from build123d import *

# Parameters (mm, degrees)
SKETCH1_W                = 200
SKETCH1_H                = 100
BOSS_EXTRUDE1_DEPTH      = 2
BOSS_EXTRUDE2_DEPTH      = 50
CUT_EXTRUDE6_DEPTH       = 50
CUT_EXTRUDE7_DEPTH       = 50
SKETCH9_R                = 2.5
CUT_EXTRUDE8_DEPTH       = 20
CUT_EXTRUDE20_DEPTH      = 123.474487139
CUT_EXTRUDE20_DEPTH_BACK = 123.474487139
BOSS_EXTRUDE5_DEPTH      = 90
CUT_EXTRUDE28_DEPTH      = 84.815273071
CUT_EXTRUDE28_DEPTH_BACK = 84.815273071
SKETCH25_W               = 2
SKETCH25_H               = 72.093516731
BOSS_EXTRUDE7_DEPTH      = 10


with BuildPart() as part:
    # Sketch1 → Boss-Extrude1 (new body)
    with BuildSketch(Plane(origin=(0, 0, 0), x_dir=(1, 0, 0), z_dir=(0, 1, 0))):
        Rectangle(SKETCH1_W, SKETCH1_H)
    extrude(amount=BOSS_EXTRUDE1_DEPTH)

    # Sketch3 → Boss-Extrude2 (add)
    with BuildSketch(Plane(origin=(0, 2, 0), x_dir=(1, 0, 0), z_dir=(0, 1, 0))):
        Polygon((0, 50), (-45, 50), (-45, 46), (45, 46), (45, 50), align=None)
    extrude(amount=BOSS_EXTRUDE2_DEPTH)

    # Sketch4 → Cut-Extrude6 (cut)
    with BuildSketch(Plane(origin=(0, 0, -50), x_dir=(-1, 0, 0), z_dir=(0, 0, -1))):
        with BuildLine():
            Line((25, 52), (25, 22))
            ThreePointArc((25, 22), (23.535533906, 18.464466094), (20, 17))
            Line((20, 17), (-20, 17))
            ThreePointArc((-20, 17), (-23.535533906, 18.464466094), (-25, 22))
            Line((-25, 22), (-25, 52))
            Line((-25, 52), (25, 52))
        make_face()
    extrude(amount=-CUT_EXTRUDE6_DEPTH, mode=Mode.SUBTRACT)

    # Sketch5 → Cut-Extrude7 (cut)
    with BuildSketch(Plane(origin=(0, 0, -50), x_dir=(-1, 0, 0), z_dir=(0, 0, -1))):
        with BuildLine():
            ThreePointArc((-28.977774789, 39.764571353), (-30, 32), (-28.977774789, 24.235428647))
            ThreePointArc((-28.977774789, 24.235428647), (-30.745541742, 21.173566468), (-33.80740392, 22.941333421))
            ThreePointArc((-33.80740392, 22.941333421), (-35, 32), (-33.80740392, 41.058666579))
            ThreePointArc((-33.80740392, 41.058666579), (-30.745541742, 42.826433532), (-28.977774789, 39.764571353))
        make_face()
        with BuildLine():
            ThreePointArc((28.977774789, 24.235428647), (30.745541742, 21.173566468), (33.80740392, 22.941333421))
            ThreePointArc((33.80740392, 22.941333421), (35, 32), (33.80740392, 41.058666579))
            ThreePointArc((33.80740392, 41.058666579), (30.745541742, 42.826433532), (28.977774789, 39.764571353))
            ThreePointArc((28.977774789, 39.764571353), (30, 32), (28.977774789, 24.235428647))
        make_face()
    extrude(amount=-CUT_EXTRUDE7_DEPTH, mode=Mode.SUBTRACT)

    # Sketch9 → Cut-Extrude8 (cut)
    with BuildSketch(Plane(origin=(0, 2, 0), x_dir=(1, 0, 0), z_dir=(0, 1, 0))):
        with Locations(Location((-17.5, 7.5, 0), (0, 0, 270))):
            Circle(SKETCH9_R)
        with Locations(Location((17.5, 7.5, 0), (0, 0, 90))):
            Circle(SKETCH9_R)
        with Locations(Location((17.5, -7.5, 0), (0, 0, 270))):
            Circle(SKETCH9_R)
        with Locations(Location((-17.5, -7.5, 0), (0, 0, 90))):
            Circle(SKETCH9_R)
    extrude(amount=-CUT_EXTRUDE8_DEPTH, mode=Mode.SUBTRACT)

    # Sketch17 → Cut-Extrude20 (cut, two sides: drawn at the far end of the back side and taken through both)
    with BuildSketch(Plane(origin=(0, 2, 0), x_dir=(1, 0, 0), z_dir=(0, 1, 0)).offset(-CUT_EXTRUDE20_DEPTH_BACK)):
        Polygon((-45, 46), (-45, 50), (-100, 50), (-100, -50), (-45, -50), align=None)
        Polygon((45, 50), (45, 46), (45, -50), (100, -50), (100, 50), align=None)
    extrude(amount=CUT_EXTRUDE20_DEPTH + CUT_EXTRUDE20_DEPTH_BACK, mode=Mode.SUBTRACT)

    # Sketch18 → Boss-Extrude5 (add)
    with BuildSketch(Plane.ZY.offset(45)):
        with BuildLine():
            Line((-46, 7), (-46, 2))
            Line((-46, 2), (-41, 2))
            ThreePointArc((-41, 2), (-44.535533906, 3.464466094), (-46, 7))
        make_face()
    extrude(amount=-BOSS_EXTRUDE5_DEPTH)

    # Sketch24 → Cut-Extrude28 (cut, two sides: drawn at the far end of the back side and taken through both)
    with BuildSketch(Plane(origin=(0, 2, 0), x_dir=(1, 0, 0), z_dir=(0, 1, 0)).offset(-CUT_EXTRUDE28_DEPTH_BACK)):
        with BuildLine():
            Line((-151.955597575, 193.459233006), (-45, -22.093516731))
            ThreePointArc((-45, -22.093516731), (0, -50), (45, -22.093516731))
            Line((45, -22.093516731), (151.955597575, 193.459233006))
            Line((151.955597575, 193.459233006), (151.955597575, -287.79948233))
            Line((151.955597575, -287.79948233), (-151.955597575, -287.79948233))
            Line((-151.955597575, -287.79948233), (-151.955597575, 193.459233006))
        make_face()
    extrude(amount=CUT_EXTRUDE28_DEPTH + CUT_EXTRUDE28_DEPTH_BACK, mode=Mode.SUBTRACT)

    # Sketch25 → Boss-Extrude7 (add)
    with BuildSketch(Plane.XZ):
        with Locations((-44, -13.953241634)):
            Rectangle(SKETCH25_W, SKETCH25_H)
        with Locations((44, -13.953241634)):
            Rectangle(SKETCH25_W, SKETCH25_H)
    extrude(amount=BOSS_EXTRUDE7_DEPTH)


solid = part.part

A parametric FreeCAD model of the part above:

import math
import FreeCAD as App
import Part
import Sketcher
from FreeCAD import Vector
Q = App.Units.Quantity

doc = App.newDocument("Part")
params = doc.addObject("Spreadsheet::Sheet", "Params")
for row, (alias, value) in enumerate([
    ("sketch1_width", "200 mm"),
    ("sketch1_height", "100 mm"),
    ("pad1_length", "2 mm"),
    ("sketch2_width", "90 mm"),
    ("sketch2_height", "4 mm"),
    ("pad2_length", "50 mm"),
    ("sketch3_radius", "5 mm"),
    ("sketch3_width", "50 mm"),
    ("sketch3_height", "30 mm"),
    ("pocket1_length", "50 mm"),
    ("sketch4_radius", "30 mm"),
    ("sketch4_radius2", "35 mm"),
    ("pocket2_length", "50 mm"),
    ("sketch5_diameter", "5 mm"),
    ("pocket3_length", "20 mm"),
    ("sketch6_width", "55 mm"),
    ("sketch6_height", "100 mm"),
    ("sketch7_radius", "5 mm"),
    ("pad3_length", "90 mm"),
    ("sketch9_width", "2 mm"),
    ("pad4_length", "10 mm"),
], start=1):
    params.set(f"A{row}", alias)
    params.set(f"B{row}", "=" + value)
    params.setAlias(f"B{row}", alias)

body = doc.addObject("PartDesign::Body", "Body")

sketch1 = body.newObject("Sketcher::SketchObject", "Sketch")
sketch1.AttachmentSupport = (doc.getObject("XZ_Plane"), [""])
sketch1.MapMode = "FlatFace"
sketch1.addGeometry([
    Part.LineSegment(Vector(-100, -50, 0), Vector(-100, 50, 0)),
    Part.LineSegment(Vector(-100, 50, 0), Vector(100, 50, 0)),
    Part.LineSegment(Vector(100, 50, 0), Vector(100, -50, 0)),
    Part.LineSegment(Vector(100, -50, 0), Vector(-100, -50, 0)),
], False)
sketch1.addConstraint([
    Sketcher.Constraint("Coincident", 0, 2, 1, 1),
    Sketcher.Constraint("Coincident", 1, 2, 2, 1),
    Sketcher.Constraint("Coincident", 2, 2, 3, 1),
    Sketcher.Constraint("Coincident", 3, 2, 0, 1),
    Sketcher.Constraint("Vertical", 0),
    Sketcher.Constraint("Horizontal", 1),
    Sketcher.Constraint("Vertical", 2),
    Sketcher.Constraint("Horizontal", 3),
    Sketcher.Constraint("Symmetric", 0, 2, 2, 2, -1, 1),
    Sketcher.Constraint("DistanceX", 1, 1, 1, 2, Q("200 mm")),
    Sketcher.Constraint("DistanceY", 0, 1, 0, 2, Q("100 mm")),
])
sketch1.setExpression("Constraints[9]", "Params.sketch1_width")
sketch1.setExpression("Constraints[10]", "Params.sketch1_height")
pad1 = body.newObject("PartDesign::Pad", "Pad")
pad1.Profile = sketch1
pad1.setExpression("Length", "Params.pad1_length")
pad1.Reversed = True

sketch2 = body.newObject("Sketcher::SketchObject", "Sketch001")
sketch2.AttachmentSupport = (doc.getObject("XZ_Plane"), [""])
sketch2.MapMode = "FlatFace"
sketch2.AttachmentOffset = App.Placement(Vector(0, 0, -2), App.Rotation())
sketch2.addGeometry([
    Part.LineSegment(Vector(-45, -50, 0), Vector(-45, -46, 0)),
    Part.LineSegment(Vector(-45, -46, 0), Vector(45, -46, 0)),
    Part.LineSegment(Vector(45, -46, 0), Vector(45, -50, 0)),
    Part.LineSegment(Vector(45, -50, 0), Vector(-45, -50, 0)),
], False)
sketch2.addConstraint([
    Sketcher.Constraint("Coincident", 0, 2, 1, 1),
    Sketcher.Constraint("Coincident", 1, 2, 2, 1),
    Sketcher.Constraint("Coincident", 2, 2, 3, 1),
    Sketcher.Constraint("Coincident", 3, 2, 0, 1),
    Sketcher.Constraint("Vertical", 0),
    Sketcher.Constraint("Horizontal", 1),
    Sketcher.Constraint("Vertical", 2),
    Sketcher.Constraint("Horizontal", 3),
    Sketcher.Constraint("DistanceX", 1, 1, 1, 2, Q("90 mm")),
    Sketcher.Constraint("DistanceY", 0, 1, 0, 2, Q("4 mm")),
    Sketcher.Constraint("DistanceX", 0, 2, -1, 1, Q("45 mm")),
    Sketcher.Constraint("DistanceY", 0, 2, -1, 1, Q("46 mm")),
])
sketch2.setExpression("Constraints[8]", "Params.sketch2_width")
sketch2.setExpression("Constraints[9]", "Params.sketch2_height")
pad2 = body.newObject("PartDesign::Pad", "Pad001")
pad2.Profile = sketch2
pad2.setExpression("Length", "Params.pad2_length")
pad2.Reversed = True

sketch3 = body.newObject("Sketcher::SketchObject", "Sketch002")
sketch3.AttachmentSupport = (doc.getObject("XY_Plane"), [""])
sketch3.MapMode = "FlatFace"
sketch3.AttachmentOffset = App.Placement(Vector(0, 0, -50), App.Rotation())
sketch3.addGeometry([
    Part.LineSegment(Vector(-25, 22, 0), Vector(-25, 52, 0)),
    Part.LineSegment(Vector(-25, 52, 0), Vector(25, 52, 0)),
    Part.LineSegment(Vector(25, 52, 0), Vector(25, 22, 0)),
    Part.ArcOfCircle(Part.Circle(Vector(20, 22, 0), Vector(0, 0, 1), 5), math.radians(-90), math.radians(0)),
    Part.LineSegment(Vector(20, 17, 0), Vector(-20, 17, 0)),
    Part.ArcOfCircle(Part.Circle(Vector(-20, 22, 0), Vector(0, 0, 1), 5), math.radians(180), math.radians(270)),
], False)
sketch3.addConstraint([
    Sketcher.Constraint("Coincident", 0, 2, 1, 1),
    Sketcher.Constraint("Coincident", 1, 2, 2, 1),
    Sketcher.Constraint("Tangent", 2, 2, 3, 2),
    Sketcher.Constraint("Tangent", 3, 1, 4, 1),
    Sketcher.Constraint("Tangent", 4, 2, 5, 2),
    Sketcher.Constraint("Tangent", 5, 1, 0, 1),
    Sketcher.Constraint("Vertical", 0),
    Sketcher.Constraint("Horizontal", 1),
    Sketcher.Constraint("Vertical", 2),
    Sketcher.Constraint("Horizontal", 4),
    Sketcher.Constraint("Equal", 3, 5),
    Sketcher.Constraint("Radius", 3, Q("5 mm")),
    Sketcher.Constraint("DistanceX", 1, 1, 1, 2, Q("50 mm")),
    Sketcher.Constraint("DistanceY", 0, 1, 0, 2, Q("30 mm")),
    Sketcher.Constraint("DistanceX", -1, 1, 3, 3, Q("20 mm")),
    Sketcher.Constraint("DistanceY", -1, 1, 3, 3, Q("22 mm")),
])
sketch3.setExpression("Constraints[11]", "Params.sketch3_radius")
sketch3.setExpression("Constraints[12]", "Params.sketch3_width")
sketch3.setExpression("Constraints[13]", "Params.sketch3_height")
pocket1 = body.newObject("PartDesign::Pocket", "Pocket")
pocket1.Profile = sketch3
pocket1.setExpression("Length", "Params.pocket1_length")
pocket1.Reversed = True

sketch4 = body.newObject("Sketcher::SketchObject", "Sketch003")
sketch4.AttachmentSupport = (doc.getObject("XY_Plane"), [""])
sketch4.MapMode = "FlatFace"
sketch4.AttachmentOffset = App.Placement(Vector(0, 0, -50), App.Rotation())
sketch4.addGeometry([
    Part.ArcOfCircle(Part.Circle(Vector(0, 32, 0), Vector(0, 0, 1), 30), math.radians(-15), math.radians(15)),
    Part.ArcOfCircle(Part.Circle(Vector(31.4, 40.4, 0), Vector(0, 0, 1), 2.5), math.radians(15), math.radians(195)),
    Part.ArcOfCircle(Part.Circle(Vector(0, 32, 0), Vector(0, 0, 1), 35), math.radians(-15), math.radians(15)),
    Part.ArcOfCircle(Part.Circle(Vector(31.4, 23.6, 0), Vector(0, 0, 1), 2.5), math.radians(165), math.radians(345)),
    Part.ArcOfCircle(Part.Circle(Vector(-31.4, 23.6, 0), Vector(0, 0, 1), 2.5), math.radians(-165), math.radians(15)),
    Part.ArcOfCircle(Part.Circle(Vector(0, 32, 0), Vector(0, 0, 1), 35), math.radians(165), math.radians(195)),
    Part.ArcOfCircle(Part.Circle(Vector(-31.4, 40.4, 0), Vector(0, 0, 1), 2.5), math.radians(-15), math.radians(165)),
    Part.ArcOfCircle(Part.Circle(Vector(0, 32, 0), Vector(0, 0, 1), 30), math.radians(165), math.radians(195)),
], False)
sketch4.addConstraint([
    Sketcher.Constraint("Tangent", 0, 2, 1, 2),
    Sketcher.Constraint("Tangent", 1, 1, 2, 2),
    Sketcher.Constraint("Tangent", 2, 1, 3, 2),
    Sketcher.Constraint("Tangent", 3, 1, 0, 1),
    Sketcher.Constraint("Tangent", 4, 1, 5, 2),
    Sketcher.Constraint("Tangent", 5, 1, 6, 2),
    Sketcher.Constraint("Tangent", 6, 1, 7, 1),
    Sketcher.Constraint("Tangent", 7, 2, 4, 2),
    Sketcher.Constraint("Coincident", 2, 3, 0, 3),
    Sketcher.Constraint("Coincident", 5, 3, 0, 3),
    Sketcher.Constraint("Coincident", 7, 3, 0, 3),
    Sketcher.Constraint("Equal", 3, 4),
    Sketcher.Constraint("Equal", 2, 5),
    Sketcher.Constraint("Symmetric", 3, 3, 4, 3, -2),
    Sketcher.Constraint("Horizontal", 1, 3, 6, 3),
    Sketcher.Constraint("Vertical", 1, 3, 3, 3),
    Sketcher.Constraint("Radius", 0, Q("30 mm")),
    Sketcher.Constraint("Radius", 2, Q("35 mm")),
    Sketcher.Constraint("DistanceY", -1, 1, 0, 3, Q("32 mm")),
    Sketcher.Constraint("DistanceX", -1, 1, 1, 3, Q("31.392589 mm")),
])
sketch4.setExpression("Constraints[16]", "Params.sketch4_radius")
sketch4.setExpression("Constraints[17]", "Params.sketch4_radius2")
pocket2 = body.newObject("PartDesign::Pocket", "Pocket001")
pocket2.Profile = sketch4
pocket2.setExpression("Length", "Params.pocket2_length")
pocket2.Reversed = True

sketch5 = body.newObject("Sketcher::SketchObject", "Sketch004")
sketch5.AttachmentSupport = (doc.getObject("XZ_Plane"), [""])
sketch5.MapMode = "FlatFace"
sketch5.AttachmentOffset = App.Placement(Vector(0, 0, -2), App.Rotation())
sketch5.addGeometry([
    Part.Circle(Vector(-17.5, -7.5, 0), Vector(0, 0, 1), 2.5),
    Part.Circle(Vector(17.5, -7.5, 0), Vector(0, 0, 1), 2.5),
    Part.Circle(Vector(17.5, 7.5, 0), Vector(0, 0, 1), 2.5),
    Part.Circle(Vector(-17.5, 7.5, 0), Vector(0, 0, 1), 2.5),
], False)
sketch5.addConstraint([
    Sketcher.Constraint("Equal", 0, 1),
    Sketcher.Constraint("Equal", 1, 2),
    Sketcher.Constraint("Equal", 2, 3),
    Sketcher.Constraint("Symmetric", 0, 3, 2, 3, -1, 1),
    Sketcher.Constraint("Symmetric", 1, 3, 3, 3, -1, 1),
    Sketcher.Constraint("Symmetric", 0, 3, 1, 3, -2),
    Sketcher.Constraint("Diameter", 0, Q("5 mm")),
    Sketcher.Constraint("DistanceX", 0, 3, 1, 3, Q("35 mm")),
    Sketcher.Constraint("DistanceY", 1, 3, 2, 3, Q("15 mm")),
])
sketch5.setExpression("Constraints[6]", "Params.sketch5_diameter")
pocket3 = body.newObject("PartDesign::Pocket", "Pocket002")
pocket3.Profile = sketch5
pocket3.setExpression("Length", "Params.pocket3_length")
pocket3.Reversed = True

sketch6 = body.newObject("Sketcher::SketchObject", "Sketch005")
sketch6.AttachmentSupport = (doc.getObject("XZ_Plane"), [""])
sketch6.MapMode = "FlatFace"
sketch6.AttachmentOffset = App.Placement(Vector(0, 0, -2), App.Rotation())
sketch6.addGeometry([
    Part.LineSegment(Vector(-45, -50, 0), Vector(-100, -50, 0)),
    Part.LineSegment(Vector(-100, -50, 0), Vector(-100, 50, 0)),
    Part.LineSegment(Vector(-100, 50, 0), Vector(-45, 50, 0)),
    Part.LineSegment(Vector(-45, 50, 0), Vector(-45, -50, 0)),
    Part.LineSegment(Vector(45, -50, 0), Vector(45, 50, 0)),
    Part.LineSegment(Vector(45, 50, 0), Vector(100, 50, 0)),
    Part.LineSegment(Vector(100, 50, 0), Vector(100, -50, 0)),
    Part.LineSegment(Vector(100, -50, 0), Vector(45, -50, 0)),
], False)
sketch6.addConstraint([
    Sketcher.Constraint("Coincident", 0, 2, 1, 1),
    Sketcher.Constraint("Coincident", 1, 2, 2, 1),
    Sketcher.Constraint("Coincident", 2, 2, 3, 1),
    Sketcher.Constraint("Coincident", 3, 2, 0, 1),
    Sketcher.Constraint("Coincident", 4, 2, 5, 1),
    Sketcher.Constraint("Coincident", 5, 2, 6, 1),
    Sketcher.Constraint("Coincident", 6, 2, 7, 1),
    Sketcher.Constraint("Coincident", 7, 2, 4, 1),
    Sketcher.Constraint("Horizontal", 0),
    Sketcher.Constraint("Vertical", 1),
    Sketcher.Constraint("Horizontal", 2),
    Sketcher.Constraint("Vertical", 3),
    Sketcher.Constraint("Vertical", 4),
    Sketcher.Constraint("Horizontal", 5),
    Sketcher.Constraint("Vertical", 6),
    Sketcher.Constraint("Horizontal", 7),
    Sketcher.Constraint("Symmetric", 3, 2, 4, 2, -1, 1),
    Sketcher.Constraint("Symmetric", 1, 2, 6, 2, -1, 1),
    Sketcher.Constraint("Horizontal", 2, 2, 4, 2),
    Sketcher.Constraint("DistanceX", 0, 2, 0, 1, Q("55 mm")),
    Sketcher.Constraint("DistanceY", 1, 1, 1, 2, Q("100 mm")),
    Sketcher.Constraint("DistanceX", 0, 2, -1, 1, Q("100 mm")),
])
sketch6.setExpression("Constraints[19]", "Params.sketch6_width")
sketch6.setExpression("Constraints[20]", "Params.sketch6_height")
pocket4 = body.newObject("PartDesign::Pocket", "Pocket003")
pocket4.Profile = sketch6
pocket4.Type = "ThroughAll"
pocket4.Midplane = True

sketch7 = body.newObject("Sketcher::SketchObject", "Sketch006")
sketch7.AttachmentSupport = (doc.getObject("YZ_Plane"), [""])
sketch7.MapMode = "FlatFace"
sketch7.AttachmentOffset = App.Placement(Vector(0, 0, -45), App.Rotation())
sketch7.addGeometry([
    Part.LineSegment(Vector(7, -46, 0), Vector(2, -46, 0)),
    Part.LineSegment(Vector(2, -46, 0), Vector(2, -41, 0)),
    Part.ArcOfCircle(Part.Circle(Vector(7, -41, 0), Vector(0, 0, 1), 5), math.radians(180), math.radians(270)),
], False)
sketch7.addConstraint([
    Sketcher.Constraint("Coincident", 0, 2, 1, 1),
    Sketcher.Constraint("Tangent", 1, 2, 2, 1),
    Sketcher.Constraint("Tangent", 2, 2, 0, 1),
    Sketcher.Constraint("Horizontal", 0),
    Sketcher.Constraint("Vertical", 1),
    Sketcher.Constraint("Radius", 2, Q("5 mm")),
    Sketcher.Constraint("DistanceX", -1, 1, 2, 3, Q("7 mm")),
    Sketcher.Constraint("DistanceY", 2, 3, -1, 1, Q("41 mm")),
])
sketch7.setExpression("Constraints[5]", "Params.sketch7_radius")
pad3 = body.newObject("PartDesign::Pad", "Pad002")
pad3.Profile = sketch7
pad3.setExpression("Length", "Params.pad3_length")

sketch8 = body.newObject("Sketcher::SketchObject", "Sketch007")
sketch8.AttachmentSupport = (doc.getObject("XZ_Plane"), [""])
sketch8.MapMode = "FlatFace"
sketch8.AttachmentOffset = App.Placement(Vector(0, 0, -2), App.Rotation())
sketch8.addGeometry([
    Part.LineSegment(Vector(-45, 22, 0), Vector(-152, -193, 0)),
    Part.LineSegment(Vector(-152, -193, 0), Vector(-152, 288, 0)),
    Part.LineSegment(Vector(-152, 288, 0), Vector(152, 288, 0)),
    Part.LineSegment(Vector(152, 288, 0), Vector(152, -193, 0)),
    Part.LineSegment(Vector(152, -193, 0), Vector(45, 22, 0)),
    Part.ArcOfCircle(Part.Circle(Vector(0, 0, 0), Vector(0, 0, 1), 50), math.radians(26), math.radians(154)),
], False)
sketch8.addConstraint([
    Sketcher.Constraint("Coincident", 0, 2, 1, 1),
    Sketcher.Constraint("Coincident", 1, 2, 2, 1),
    Sketcher.Constraint("Coincident", 2, 2, 3, 1),
    Sketcher.Constraint("Coincident", 3, 2, 4, 1),
    Sketcher.Constraint("Tangent", 4, 2, 5, 1),
    Sketcher.Constraint("Tangent", 5, 2, 0, 1),
    Sketcher.Constraint("Vertical", 1),
    Sketcher.Constraint("Horizontal", 2),
    Sketcher.Constraint("Vertical", 3),
    Sketcher.Constraint("Symmetric", 0, 2, 3, 2, -2),
    Sketcher.Constraint("PointOnObject", 5, 3, -2),
    Sketcher.Constraint("DistanceX", -1, 1, 4, 2, Q("45 mm")),
    Sketcher.Constraint("Radius", 5, Q("50.235133 mm")),
    Sketcher.Constraint("DistanceY", 0, 2, 5, 3, Q("193.2241 mm")),
    Sketcher.Constraint("DistanceY", 1, 1, 1, 2, Q("481.258715 mm")),
    Sketcher.Constraint("DistanceY", 5, 3, -1, 1, Q("0.235133 mm")),
])
pocket5 = body.newObject("PartDesign::Pocket", "Pocket004")
pocket5.Profile = sketch8
pocket5.Type = "ThroughAll"
pocket5.Midplane = True

sketch9 = body.newObject("Sketcher::SketchObject", "Sketch008")
sketch9.AttachmentSupport = (doc.getObject("XZ_Plane"), [""])
sketch9.MapMode = "FlatFace"
sketch9.addGeometry([
    Part.LineSegment(Vector(-45, 22.1, 0), Vector(-45, -50, 0)),
    Part.LineSegment(Vector(-45, -50, 0), Vector(-43, -50, 0)),
    Part.LineSegment(Vector(-43, -50, 0), Vector(-43, 22.1, 0)),
    Part.LineSegment(Vector(-43, 22.1, 0), Vector(-45, 22.1, 0)),
    Part.LineSegment(Vector(43, 22.1, 0), Vector(43, -50, 0)),
    Part.LineSegment(Vector(43, -50, 0), Vector(45, -50, 0)),
    Part.LineSegment(Vector(45, -50, 0), Vector(45, 22.1, 0)),
    Part.LineSegment(Vector(45, 22.1, 0), Vector(43, 22.1, 0)),
], False)
sketch9.addConstraint([
    Sketcher.Constraint("Coincident", 0, 2, 1, 1),
    Sketcher.Constraint("Coincident", 1, 2, 2, 1),
    Sketcher.Constraint("Coincident", 2, 2, 3, 1),
    Sketcher.Constraint("Coincident", 3, 2, 0, 1),
    Sketcher.Constraint("Coincident", 4, 2, 5, 1),
    Sketcher.Constraint("Coincident", 5, 2, 6, 1),
    Sketcher.Constraint("Coincident", 6, 2, 7, 1),
    Sketcher.Constraint("Coincident", 7, 2, 4, 1),
    Sketcher.Constraint("Vertical", 0),
    Sketcher.Constraint("Horizontal", 1),
    Sketcher.Constraint("Vertical", 2),
    Sketcher.Constraint("Horizontal", 3),
    Sketcher.Constraint("Vertical", 4),
    Sketcher.Constraint("Horizontal", 5),
    Sketcher.Constraint("Vertical", 6),
    Sketcher.Constraint("Horizontal", 7),
    Sketcher.Constraint("Symmetric", 1, 2, 4, 2, -2),
    Sketcher.Constraint("Symmetric", 3, 2, 6, 2, -2),
    Sketcher.Constraint("DistanceX", 1, 1, 1, 2, Q("2 mm")),
    Sketcher.Constraint("DistanceX", 0, 2, -1, 1, Q("45 mm")),
    Sketcher.Constraint("DistanceY", 0, 2, -1, 1, Q("50 mm")),
    Sketcher.Constraint("DistanceY", 0, 2, 0, 1, Q("72.093517 mm")),
])
sketch9.setExpression("Constraints[18]", "Params.sketch9_width")
pad4 = body.newObject("PartDesign::Pad", "Pad003")
pad4.Profile = sketch9
pad4.setExpression("Length", "Params.pad4_length")

doc.recompute()
